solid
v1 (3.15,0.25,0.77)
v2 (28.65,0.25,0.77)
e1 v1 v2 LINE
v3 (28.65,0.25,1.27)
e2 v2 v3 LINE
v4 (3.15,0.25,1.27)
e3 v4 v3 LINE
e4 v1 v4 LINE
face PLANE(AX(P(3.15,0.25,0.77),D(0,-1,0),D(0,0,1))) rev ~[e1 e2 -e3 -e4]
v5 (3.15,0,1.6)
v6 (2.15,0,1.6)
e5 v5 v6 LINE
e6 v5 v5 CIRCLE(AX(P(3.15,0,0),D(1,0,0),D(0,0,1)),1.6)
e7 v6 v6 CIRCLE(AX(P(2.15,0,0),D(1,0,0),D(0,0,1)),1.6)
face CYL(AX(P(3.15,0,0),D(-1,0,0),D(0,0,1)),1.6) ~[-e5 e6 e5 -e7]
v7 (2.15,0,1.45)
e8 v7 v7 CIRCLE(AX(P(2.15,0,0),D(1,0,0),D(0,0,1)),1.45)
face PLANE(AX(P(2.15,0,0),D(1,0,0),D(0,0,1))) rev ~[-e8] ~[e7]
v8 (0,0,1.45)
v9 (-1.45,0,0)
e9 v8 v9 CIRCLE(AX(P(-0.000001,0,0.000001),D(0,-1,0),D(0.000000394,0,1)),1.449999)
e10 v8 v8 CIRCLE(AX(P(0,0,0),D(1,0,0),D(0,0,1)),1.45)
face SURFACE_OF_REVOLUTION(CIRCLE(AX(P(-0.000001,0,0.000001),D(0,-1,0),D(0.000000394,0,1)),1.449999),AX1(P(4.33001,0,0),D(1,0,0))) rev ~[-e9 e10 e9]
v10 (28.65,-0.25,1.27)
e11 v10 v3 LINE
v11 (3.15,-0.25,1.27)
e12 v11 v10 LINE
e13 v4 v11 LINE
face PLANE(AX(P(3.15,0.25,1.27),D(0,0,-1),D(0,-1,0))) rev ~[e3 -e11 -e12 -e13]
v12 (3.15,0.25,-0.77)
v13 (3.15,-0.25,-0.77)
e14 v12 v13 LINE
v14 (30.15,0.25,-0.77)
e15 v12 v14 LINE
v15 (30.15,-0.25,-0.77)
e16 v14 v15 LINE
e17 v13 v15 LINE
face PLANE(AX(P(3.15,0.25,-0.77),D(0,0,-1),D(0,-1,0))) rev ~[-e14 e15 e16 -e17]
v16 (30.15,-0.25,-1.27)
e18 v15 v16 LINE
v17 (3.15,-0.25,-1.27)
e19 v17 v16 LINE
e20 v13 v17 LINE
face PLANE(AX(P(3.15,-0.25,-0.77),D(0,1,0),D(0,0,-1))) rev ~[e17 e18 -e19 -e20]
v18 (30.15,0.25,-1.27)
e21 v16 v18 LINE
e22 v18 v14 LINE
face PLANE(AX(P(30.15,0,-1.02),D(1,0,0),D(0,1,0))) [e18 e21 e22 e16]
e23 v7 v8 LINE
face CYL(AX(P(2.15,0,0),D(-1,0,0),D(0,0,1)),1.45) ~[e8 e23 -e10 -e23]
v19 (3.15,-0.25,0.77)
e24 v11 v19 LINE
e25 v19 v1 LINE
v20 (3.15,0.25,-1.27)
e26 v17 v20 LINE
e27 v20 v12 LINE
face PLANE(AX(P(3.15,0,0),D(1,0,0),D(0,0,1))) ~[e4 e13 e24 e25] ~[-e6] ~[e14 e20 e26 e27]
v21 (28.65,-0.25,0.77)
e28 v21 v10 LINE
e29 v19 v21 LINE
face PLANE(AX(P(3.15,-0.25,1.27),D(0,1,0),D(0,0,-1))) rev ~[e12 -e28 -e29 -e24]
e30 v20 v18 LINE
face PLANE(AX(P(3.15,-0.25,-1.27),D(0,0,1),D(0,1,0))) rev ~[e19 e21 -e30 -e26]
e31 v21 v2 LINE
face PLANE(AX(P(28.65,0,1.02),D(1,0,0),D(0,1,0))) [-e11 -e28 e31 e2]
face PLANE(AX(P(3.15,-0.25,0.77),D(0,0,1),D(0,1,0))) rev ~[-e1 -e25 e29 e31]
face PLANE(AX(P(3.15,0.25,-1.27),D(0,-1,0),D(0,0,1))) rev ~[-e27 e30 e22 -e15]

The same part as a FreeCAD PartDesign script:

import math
import FreeCAD as App
import Part
import Sketcher

V = App.Vector

doc = App.newDocument("Part")
body = doc.addObject("PartDesign::Body", "Body")

sketch1 = body.newObject("Sketcher::SketchObject", "Sketch")
sketch1.AttachmentSupport = (doc.getObject("XZ_Plane"), [""])
sketch1.MapMode = "FlatFace"
sketch1.addGeometry(Part.LineSegment(V(2.15, 1.45, 0), V(0, 1.45, 0)), False)
sketch1.addGeometry(Part.ArcOfCircle(Part.Circle(V(0, 0, 0), V(0, 0, 1), 1.45), math.radians(90), math.radians(180)), False)
sketch1.addGeometry(Part.LineSegment(V(-1.45, 0, 0), V(3.15, 0, 0)), False)
sketch1.addGeometry(Part.LineSegment(V(3.15, 0, 0), V(3.15, 1.6, 0)), False)
sketch1.addGeometry(Part.LineSegment(V(3.15, 1.6, 0), V(2.15, 1.6, 0)), False)
sketch1.addGeometry(Part.LineSegment(V(2.15, 1.6, 0), V(2.15, 1.45, 0)), False)
sketch1.addConstraint(Sketcher.Constraint("Tangent", 0, 2, 1, 1))
sketch1.addConstraint(Sketcher.Constraint("Coincident", 1, 2, 2, 1))
sketch1.addConstraint(Sketcher.Constraint("Coincident", 2, 2, 3, 1))
sketch1.addConstraint(Sketcher.Constraint("Coincident", 3, 2, 4, 1))
sketch1.addConstraint(Sketcher.Constraint("Coincident", 4, 2, 5, 1))
sketch1.addConstraint(Sketcher.Constraint("Coincident", 5, 2, 0, 1))
sketch1.addConstraint(Sketcher.Constraint("Horizontal", 0))
sketch1.addConstraint(Sketcher.Constraint("Horizontal", 2))
sketch1.addConstraint(Sketcher.Constraint("Vertical", 3))
sketch1.addConstraint(Sketcher.Constraint("Horizontal", 4))
sketch1.addConstraint(Sketcher.Constraint("Vertical", 5))
sketch1.addConstraint(Sketcher.Constraint("Coincident", 1, 3, -1, 1))
sketch1.addConstraint(Sketcher.Constraint("PointOnObject", 1, 2, -1))
sketch1.addConstraint(Sketcher.Constraint("DistanceX", 4, 2, 4, 1, 1.0))
sketch1.addConstraint(Sketcher.Constraint("Radius", 1, 1.449999))
sketch1.addConstraint(Sketcher.Constraint("DistanceX", 2, 1, 2, 2, 4.6))
sketch1.addConstraint(Sketcher.Constraint("DistanceY", 3, 1, 3, 2, 1.6))
revolution = body.newObject("PartDesign::Revolution", "Revolution")
revolution.Profile = sketch1
revolution.ReferenceAxis = (sketch1, ["H_Axis"])
revolution.Angle = 360

sketch2 = body.newObject("Sketcher::SketchObject", "Sketch001")
sketch2.AttachmentSupport = (doc.getObject("YZ_Plane"), [""])
sketch2.MapMode = "FlatFace"
sketch2.AttachmentOffset = App.Placement(V(0, 0, 3.15), App.Rotation())
sketch2.addGeometry(Part.LineSegment(V(0.2, -0.8, 0), V(-0.2, -0.8, 0)), False)
sketch2.addGeometry(Part.LineSegment(V(-0.2, -0.8, 0), V(-0.2, -1.3, 0)), False)
sketch2.addGeometry(Part.LineSegment(V(-0.2, -1.3, 0), V(0.2, -1.3, 0)), False)
sketch2.addGeometry(Part.LineSegment(V(0.2, -1.3, 0), V(0.2, -0.8, 0)), False)
sketch2.addGeometry(Part.LineSegment(V(0.2, 1.3, 0), V(-0.2, 1.3, 0)), False)
sketch2.addGeometry(Part.LineSegment(V(-0.2, 1.3, 0), V(-0.2, 0.8, 0)), False)
sketch2.addGeometry(Part.LineSegment(V(-0.2, 0.8, 0), V(0.2, 0.8, 0)), False)
sketch2.addGeometry(Part.LineSegment(V(0.2, 0.8, 0), V(0.2, 1.3, 0)), False)
sketch2.addConstraint(Sketcher.Constraint("Coincident", 0, 2, 1, 1))
sketch2.addConstraint(Sketcher.Constraint("Coincident", 1, 2, 2, 1))
sketch2.addConstraint(Sketcher.Constraint("Coincident", 2, 2, 3, 1))
sketch2.addConstraint(Sketcher.Constraint("Coincident", 3, 2, 0, 1))
sketch2.addConstraint(Sketcher.Constraint("Coincident", 4, 2, 5, 1))
sketch2.addConstraint(Sketcher.Constraint("Coincident", 5, 2, 6, 1))
sketch2.addConstraint(Sketcher.Constraint("Coincident", 6, 2, 7, 1))
sketch2.addConstraint(Sketcher.Constraint("Coincident", 7, 2, 4, 1))
sketch2.addConstraint(Sketcher.Constraint("Horizontal", 0))
sketch2.addConstraint(Sketcher.Constraint("Vertical", 1))
sketch2.addConstraint(Sketcher.Constraint("Horizontal", 2))
sketch2.addConstraint(Sketcher.Constraint("Vertical", 3))
sketch2.addConstraint(Sketcher.Constraint("Horizontal", 4))
sketch2.addConstraint(Sketcher.Constraint("Vertical", 5))
sketch2.addConstraint(Sketcher.Constraint("Horizontal", 6))
sketch2.addConstraint(Sketcher.Constraint("Vertical", 7))
sketch2.addConstraint(Sketcher.Constraint("Symmetric", 2, 2, 4, 2, -1, 1))
sketch2.addConstraint(Sketcher.Constraint("Symmetric", 0, 2, 6, 2, -1, 1))
sketch2.addConstraint(Sketcher.Constraint("Vertical", 1, 2, 4, 2))
sketch2.addConstraint(Sketcher.Constraint("Equal", 6, 1))
sketch2.addConstraint(Sketcher.Constraint("DistanceX", 0, 2, 0, 1, 0.5))
sketch2.addConstraint(Sketcher.Constraint("DistanceY", 0, 2, -1, 1, 0.77))
pad1 = body.newObject("PartDesign::Pad", "Pad")
pad1.Profile = sketch2
pad1.Length = 27

sketch3 = body.newObject("Sketcher::SketchObject", "Sketch002")
sketch3.AttachmentSupport = (doc.getObject("YZ_Plane"), [""])
sketch3.MapMode = "FlatFace"
sketch3.AttachmentOffset = App.Placement(V(0, 0, 30.15), App.Rotation())
sketch3.addGeometry(Part.LineSegment(V(-0.2, 1.3, 0), V(-0.2, 0.8, 0)), False)
sketch3.addGeometry(Part.LineSegment(V(-0.2, 0.8, 0), V(0.2, 0.8, 0)), False)
sketch3.addGeometry(Part.LineSegment(V(0.2, 0.8, 0), V(0.2, 1.3, 0)), False)
sketch3.addGeometry(Part.LineSegment(V(0.2, 1.3, 0), V(-0.2, 1.3, 0)), False)
sketch3.addConstraint(Sketcher.Constraint("Coincident", 0, 2, 1, 1))
sketch3.addConstraint(Sketcher.Constraint("Coincident", 1, 2, 2, 1))
sketch3.addConstraint(Sketcher.Constraint("Coincident", 2, 2, 3, 1))
sketch3.addConstraint(Sketcher.Constraint("Coincident", 3, 2, 0, 1))
sketch3.addConstraint(Sketcher.Constraint("Vertical", 0))
sketch3.addConstraint(Sketcher.Constraint("Horizontal", 1))
sketch3.addConstraint(Sketcher.Constraint("Vertical", 2))
sketch3.addConstraint(Sketcher.Constraint("Horizontal", 3))
sketch3.addConstraint(Sketcher.Constraint("Equal", 3, 0))
sketch3.addConstraint(Sketcher.Constraint("DistanceX", 1, 1, 1, 2, 0.5))
sketch3.addConstraint(Sketcher.Constraint("DistanceX", 0, 2, -1, 1, 0.25))
sketch3.addConstraint(Sketcher.Constraint("DistanceY", -1, 1, 0, 2, 0.77))
pocket1 = body.newObject("PartDesign::Pocket", "Pocket")
pocket1.Profile = sketch3
pocket1.Length = 1.5

doc.recompute()
